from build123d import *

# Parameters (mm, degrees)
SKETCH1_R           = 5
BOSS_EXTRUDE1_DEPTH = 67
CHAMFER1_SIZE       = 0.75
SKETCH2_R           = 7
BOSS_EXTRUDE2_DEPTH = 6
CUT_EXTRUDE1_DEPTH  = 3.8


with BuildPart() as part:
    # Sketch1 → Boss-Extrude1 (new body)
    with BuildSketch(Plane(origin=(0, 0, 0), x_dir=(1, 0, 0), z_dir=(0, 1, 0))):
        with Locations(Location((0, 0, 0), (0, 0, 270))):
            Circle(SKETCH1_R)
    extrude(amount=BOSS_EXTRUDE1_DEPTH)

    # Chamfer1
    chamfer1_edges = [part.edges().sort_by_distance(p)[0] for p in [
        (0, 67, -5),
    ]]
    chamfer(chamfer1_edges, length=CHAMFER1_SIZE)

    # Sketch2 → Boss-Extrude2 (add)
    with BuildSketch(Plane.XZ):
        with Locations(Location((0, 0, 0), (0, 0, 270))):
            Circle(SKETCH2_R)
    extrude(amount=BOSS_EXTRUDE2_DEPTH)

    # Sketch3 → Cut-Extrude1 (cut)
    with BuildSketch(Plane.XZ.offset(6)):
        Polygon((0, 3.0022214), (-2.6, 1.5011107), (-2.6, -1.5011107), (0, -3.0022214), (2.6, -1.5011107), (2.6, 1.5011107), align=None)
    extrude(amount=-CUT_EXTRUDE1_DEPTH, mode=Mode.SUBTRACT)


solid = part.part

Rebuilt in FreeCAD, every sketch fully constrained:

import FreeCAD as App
import Part
import Sketcher

V = App.Vector
Q = App.Units.Quantity


def edges_at(feature, points):
    """Names of the edges that pass closest to the given points."""
    edges = feature.Shape.Edges
    near = lambda p: min(range(len(edges)), key=lambda i: edges[i].distToShape(Part.Vertex(*p))[0])
    return sorted({f"Edge{near(p) + 1}" for p in points})


def add_polygon(sketch, points):
    """Adds a closed chain of lines whose ends are joined by coincident constraints."""
    first, n = sketch.GeometryCount, len(points)
    for a, b in zip(points, points[1:] + points[:1]):
        sketch.addGeometry(Part.LineSegment(App.Vector(*a, 0), App.Vector(*b, 0)), False)
    for i in range(n):
        sketch.addConstraint(Sketcher.Constraint("Coincident", first + i, 2, first + (i + 1) % n, 1))

doc = App.newDocument("Part")
body = doc.addObject("PartDesign::Body", "Body")

sketch1 = body.newObject("Sketcher::SketchObject", "Sketch")
sketch1.AttachmentSupport = (doc.getObject("XZ_Plane"), [""])
sketch1.MapMode = "FlatFace"
sketch1.addGeometry(Part.Circle(V(0, 0, 0), V(0, 0, 1), 5), False)
sketch1.addConstraint(Sketcher.Constraint("Coincident", 0, 3, -1, 1))
sketch1.addConstraint(Sketcher.Constraint("Diameter", 0, 10.0))
pad1 = body.newObject("PartDesign::Pad", "Pad")
pad1.Profile = sketch1
pad1.Length = 67
pad1.Reversed = True
doc.recompute()

chamfer = body.newObject("PartDesign::Chamfer", "Chamfer")
chamfer.Base = (pad1, edges_at(pad1, [(0, 67, -5)]))
chamfer.Size = 0.75

sketch2 = body.newObject("Sketcher::SketchObject", "Sketch001")
sketch2.AttachmentSupport = (doc.getObject("XZ_Plane"), [""])
sketch2.MapMode = "FlatFace"
sketch2.addGeometry(Part.Circle(V(0, 0, 0), V(0, 0, 1), 7), False)
sketch2.addConstraint(Sketcher.Constraint("Coincident", 0, 3, -1, 1))
sketch2.addConstraint(Sketcher.Constraint("Diameter", 0, 14.0))
pad2 = body.newObject("PartDesign::Pad", "Pad001")
pad2.Profile = sketch2
pad2.Length = 6

sketch3 = body.newObject("Sketcher::SketchObject", "Sketch002")
sketch3.AttachmentSupport = (doc.getObject("XZ_Plane"), [""])
sketch3.MapMode = "FlatFace"
sketch3.AttachmentOffset = App.Placement(V(0, 0, 6), App.Rotation())
add_polygon(sketch3, [(0, 3), (-2.6, 1.5), (-2.6, -1.5), (0, -3), (2.6, -1.5), (2.6, 1.5)])
sketch3.addConstraint(Sketcher.Constraint("Vertical", 1))
sketch3.addConstraint(Sketcher.Constraint("Vertical", 4))
sketch3.addConstraint(Sketcher.Constraint("Symmetric", 0, 2, 3, 2, -1, 1))
sketch3.addConstraint(Sketcher.Constraint("Symmetric", 2, 2, 5, 2, -1, 1))
sketch3.addConstraint(Sketcher.Constraint("PointOnObject", 2, 2, -2))
sketch3.addConstraint(Sketcher.Constraint("Parallel", 2, 5))
sketch3.addConstraint(Sketcher.Constraint("Horizontal", 1, 2, 3, 2))
sketch3.addConstraint(Sketcher.Constraint("Angle", 0, Q("-150 deg")))
sketch3.addConstraint(Sketcher.Constraint("DistanceX", 0, 2, -1, 1, 2.6))
sketch3.addConstraint(Sketcher.Constraint("DistanceY", 1, 2, 1, 1, 3.002221))
pocket1 = body.newObject("PartDesign::Pocket", "Pocket")
pocket1.Profile = sketch3
pocket1.Length = 3.8

doc.recompute()
